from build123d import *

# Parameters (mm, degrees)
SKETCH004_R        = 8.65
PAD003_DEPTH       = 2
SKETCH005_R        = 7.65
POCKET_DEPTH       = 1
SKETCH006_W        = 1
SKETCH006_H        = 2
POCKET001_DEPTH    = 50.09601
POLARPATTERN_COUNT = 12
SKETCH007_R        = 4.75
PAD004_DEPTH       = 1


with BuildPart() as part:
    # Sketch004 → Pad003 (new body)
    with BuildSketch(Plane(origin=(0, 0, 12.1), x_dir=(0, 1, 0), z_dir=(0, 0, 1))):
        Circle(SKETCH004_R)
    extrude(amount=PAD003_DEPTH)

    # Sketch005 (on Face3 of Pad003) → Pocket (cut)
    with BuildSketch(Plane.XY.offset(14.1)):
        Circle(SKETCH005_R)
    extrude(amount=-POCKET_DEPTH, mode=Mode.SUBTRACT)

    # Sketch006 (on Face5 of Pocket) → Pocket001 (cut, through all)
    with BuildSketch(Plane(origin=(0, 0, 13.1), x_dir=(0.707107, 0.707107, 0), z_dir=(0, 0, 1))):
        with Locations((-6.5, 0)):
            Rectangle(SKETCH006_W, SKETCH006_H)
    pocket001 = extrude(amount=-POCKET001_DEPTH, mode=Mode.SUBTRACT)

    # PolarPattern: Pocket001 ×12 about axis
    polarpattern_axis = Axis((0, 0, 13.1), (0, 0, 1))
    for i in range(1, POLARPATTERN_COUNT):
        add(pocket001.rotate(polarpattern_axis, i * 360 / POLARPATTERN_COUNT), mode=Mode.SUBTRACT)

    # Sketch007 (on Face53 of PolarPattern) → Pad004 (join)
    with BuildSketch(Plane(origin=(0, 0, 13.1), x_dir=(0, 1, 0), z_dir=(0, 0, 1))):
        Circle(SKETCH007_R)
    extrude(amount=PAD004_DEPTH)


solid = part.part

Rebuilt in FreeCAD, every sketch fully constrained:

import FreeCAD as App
import Part
import Sketcher

V = App.Vector
Q = App.Units.Quantity


def add_polygon(sketch, points):
    """Adds a closed chain of lines whose ends are joined by coincident constraints."""
    first, n = sketch.GeometryCount, len(points)
    for a, b in zip(points, points[1:] + points[:1]):
        sketch.addGeometry(Part.LineSegment(App.Vector(*a, 0), App.Vector(*b, 0)), False)
    for i in range(n):
        sketch.addConstraint(Sketcher.Constraint("Coincident", first + i, 2, first + (i + 1) % n, 1))

doc = App.newDocument("Part")
body = doc.addObject("PartDesign::Body", "Body")

# Sketch on XY plane
sketch1 = body.newObject("Sketcher::SketchObject", "Sketch")
sketch1.AttachmentSupport = (doc.getObject("XY_Plane"), [""])
sketch1.MapMode = "FlatFace"
sketch1.AttachmentOffset = App.Placement(V(0, 0, 12.1), App.Rotation())
sketch1.addGeometry(Part.Circle(V(0, 0, 0), V(0, 0, 1), 9), False)
sketch1.addConstraint([
    Sketcher.Constraint("Coincident", 0, 3, -1, 1),
    Sketcher.Constraint("Diameter", 0, Q("17.3 mm")),
])
pad1 = body.newObject("PartDesign::Pad", "Pad")
pad1.Profile = sketch1
pad1.Length = 2

# Sketch on XY plane
sketch2 = body.newObject("Sketcher::SketchObject", "Sketch001")
sketch2.AttachmentSupport = (doc.getObject("XY_Plane"), [""])
sketch2.MapMode = "FlatFace"
sketch2.AttachmentOffset = App.Placement(V(0, 0, 14.1), App.Rotation())
sketch2.addGeometry(Part.Circle(V(0, 0, 0), V(0, 0, 1), 8), False)
sketch2.addConstraint([
    Sketcher.Constraint("Coincident", 0, 3, -1, 1),
    Sketcher.Constraint("Diameter", 0, Q("15.3 mm")),
])
pocket1 = body.newObject("PartDesign::Pocket", "Pocket")
pocket1.Profile = sketch2
pocket1.Length = 1

# Sketch on XY plane
sketch3 = body.newObject("Sketcher::SketchObject", "Sketch002")
sketch3.AttachmentSupport = (doc.getObject("XY_Plane"), [""])
sketch3.MapMode = "FlatFace"
sketch3.AttachmentOffset = App.Placement(V(0, 0, 13.1), App.Rotation())
add_polygon(sketch3, [(-5.7, -4.2), (-4.2, -5.7), (-3.5, -4.9), (-4.9, -3.5)])  # lines 0-3
sketch3.addConstraint([
    Sketcher.Constraint("Perpendicular", 0, 1),
    Sketcher.Constraint("Perpendicular", 1, 2),
    Sketcher.Constraint("Perpendicular", 2, 3),
    Sketcher.Constraint("Angle", 0, Q("-45 deg")),
    Sketcher.Constraint("Distance", 0, Q("2 mm")),
    Sketcher.Constraint("Distance", 1, Q("1 mm")),
    Sketcher.Constraint("DistanceX", 0, 2, -1, 1, Q("4.242641 mm")),
    Sketcher.Constraint("DistanceY", 3, 2, -1, 1, Q("4.242641 mm")),
])
pocket2 = body.newObject("PartDesign::Pocket", "Pocket001")
pocket2.Profile = sketch3
pocket2.Type = "ThroughAll"
doc.recompute()

polarpattern = body.newObject("PartDesign::PolarPattern", "PolarPattern")
polarpattern.Originals = [pocket2]
polarpattern.Axis = (doc.getObject("Z_Axis"), [""])
polarpattern.Angle = 360
polarpattern.Occurrences = 12
body.Tip = polarpattern

# Sketch on XY plane
sketch4 = body.newObject("Sketcher::SketchObject", "Sketch003")
sketch4.AttachmentSupport = (doc.getObject("XY_Plane"), [""])
sketch4.MapMode = "FlatFace"
sketch4.AttachmentOffset = App.Placement(V(0, 0, 13.1), App.Rotation())
sketch4.addGeometry(Part.Circle(V(0, 0, 0), V(0, 0, 1), 4.8), False)
sketch4.addConstraint([
    Sketcher.Constraint("Coincident", 0, 3, -1, 1),
    Sketcher.Constraint("Diameter", 0, Q("9.5 mm")),
])
pad2 = body.newObject("PartDesign::Pad", "Pad001")
pad2.Profile = sketch4
pad2.Length = 1

doc.recompute()
